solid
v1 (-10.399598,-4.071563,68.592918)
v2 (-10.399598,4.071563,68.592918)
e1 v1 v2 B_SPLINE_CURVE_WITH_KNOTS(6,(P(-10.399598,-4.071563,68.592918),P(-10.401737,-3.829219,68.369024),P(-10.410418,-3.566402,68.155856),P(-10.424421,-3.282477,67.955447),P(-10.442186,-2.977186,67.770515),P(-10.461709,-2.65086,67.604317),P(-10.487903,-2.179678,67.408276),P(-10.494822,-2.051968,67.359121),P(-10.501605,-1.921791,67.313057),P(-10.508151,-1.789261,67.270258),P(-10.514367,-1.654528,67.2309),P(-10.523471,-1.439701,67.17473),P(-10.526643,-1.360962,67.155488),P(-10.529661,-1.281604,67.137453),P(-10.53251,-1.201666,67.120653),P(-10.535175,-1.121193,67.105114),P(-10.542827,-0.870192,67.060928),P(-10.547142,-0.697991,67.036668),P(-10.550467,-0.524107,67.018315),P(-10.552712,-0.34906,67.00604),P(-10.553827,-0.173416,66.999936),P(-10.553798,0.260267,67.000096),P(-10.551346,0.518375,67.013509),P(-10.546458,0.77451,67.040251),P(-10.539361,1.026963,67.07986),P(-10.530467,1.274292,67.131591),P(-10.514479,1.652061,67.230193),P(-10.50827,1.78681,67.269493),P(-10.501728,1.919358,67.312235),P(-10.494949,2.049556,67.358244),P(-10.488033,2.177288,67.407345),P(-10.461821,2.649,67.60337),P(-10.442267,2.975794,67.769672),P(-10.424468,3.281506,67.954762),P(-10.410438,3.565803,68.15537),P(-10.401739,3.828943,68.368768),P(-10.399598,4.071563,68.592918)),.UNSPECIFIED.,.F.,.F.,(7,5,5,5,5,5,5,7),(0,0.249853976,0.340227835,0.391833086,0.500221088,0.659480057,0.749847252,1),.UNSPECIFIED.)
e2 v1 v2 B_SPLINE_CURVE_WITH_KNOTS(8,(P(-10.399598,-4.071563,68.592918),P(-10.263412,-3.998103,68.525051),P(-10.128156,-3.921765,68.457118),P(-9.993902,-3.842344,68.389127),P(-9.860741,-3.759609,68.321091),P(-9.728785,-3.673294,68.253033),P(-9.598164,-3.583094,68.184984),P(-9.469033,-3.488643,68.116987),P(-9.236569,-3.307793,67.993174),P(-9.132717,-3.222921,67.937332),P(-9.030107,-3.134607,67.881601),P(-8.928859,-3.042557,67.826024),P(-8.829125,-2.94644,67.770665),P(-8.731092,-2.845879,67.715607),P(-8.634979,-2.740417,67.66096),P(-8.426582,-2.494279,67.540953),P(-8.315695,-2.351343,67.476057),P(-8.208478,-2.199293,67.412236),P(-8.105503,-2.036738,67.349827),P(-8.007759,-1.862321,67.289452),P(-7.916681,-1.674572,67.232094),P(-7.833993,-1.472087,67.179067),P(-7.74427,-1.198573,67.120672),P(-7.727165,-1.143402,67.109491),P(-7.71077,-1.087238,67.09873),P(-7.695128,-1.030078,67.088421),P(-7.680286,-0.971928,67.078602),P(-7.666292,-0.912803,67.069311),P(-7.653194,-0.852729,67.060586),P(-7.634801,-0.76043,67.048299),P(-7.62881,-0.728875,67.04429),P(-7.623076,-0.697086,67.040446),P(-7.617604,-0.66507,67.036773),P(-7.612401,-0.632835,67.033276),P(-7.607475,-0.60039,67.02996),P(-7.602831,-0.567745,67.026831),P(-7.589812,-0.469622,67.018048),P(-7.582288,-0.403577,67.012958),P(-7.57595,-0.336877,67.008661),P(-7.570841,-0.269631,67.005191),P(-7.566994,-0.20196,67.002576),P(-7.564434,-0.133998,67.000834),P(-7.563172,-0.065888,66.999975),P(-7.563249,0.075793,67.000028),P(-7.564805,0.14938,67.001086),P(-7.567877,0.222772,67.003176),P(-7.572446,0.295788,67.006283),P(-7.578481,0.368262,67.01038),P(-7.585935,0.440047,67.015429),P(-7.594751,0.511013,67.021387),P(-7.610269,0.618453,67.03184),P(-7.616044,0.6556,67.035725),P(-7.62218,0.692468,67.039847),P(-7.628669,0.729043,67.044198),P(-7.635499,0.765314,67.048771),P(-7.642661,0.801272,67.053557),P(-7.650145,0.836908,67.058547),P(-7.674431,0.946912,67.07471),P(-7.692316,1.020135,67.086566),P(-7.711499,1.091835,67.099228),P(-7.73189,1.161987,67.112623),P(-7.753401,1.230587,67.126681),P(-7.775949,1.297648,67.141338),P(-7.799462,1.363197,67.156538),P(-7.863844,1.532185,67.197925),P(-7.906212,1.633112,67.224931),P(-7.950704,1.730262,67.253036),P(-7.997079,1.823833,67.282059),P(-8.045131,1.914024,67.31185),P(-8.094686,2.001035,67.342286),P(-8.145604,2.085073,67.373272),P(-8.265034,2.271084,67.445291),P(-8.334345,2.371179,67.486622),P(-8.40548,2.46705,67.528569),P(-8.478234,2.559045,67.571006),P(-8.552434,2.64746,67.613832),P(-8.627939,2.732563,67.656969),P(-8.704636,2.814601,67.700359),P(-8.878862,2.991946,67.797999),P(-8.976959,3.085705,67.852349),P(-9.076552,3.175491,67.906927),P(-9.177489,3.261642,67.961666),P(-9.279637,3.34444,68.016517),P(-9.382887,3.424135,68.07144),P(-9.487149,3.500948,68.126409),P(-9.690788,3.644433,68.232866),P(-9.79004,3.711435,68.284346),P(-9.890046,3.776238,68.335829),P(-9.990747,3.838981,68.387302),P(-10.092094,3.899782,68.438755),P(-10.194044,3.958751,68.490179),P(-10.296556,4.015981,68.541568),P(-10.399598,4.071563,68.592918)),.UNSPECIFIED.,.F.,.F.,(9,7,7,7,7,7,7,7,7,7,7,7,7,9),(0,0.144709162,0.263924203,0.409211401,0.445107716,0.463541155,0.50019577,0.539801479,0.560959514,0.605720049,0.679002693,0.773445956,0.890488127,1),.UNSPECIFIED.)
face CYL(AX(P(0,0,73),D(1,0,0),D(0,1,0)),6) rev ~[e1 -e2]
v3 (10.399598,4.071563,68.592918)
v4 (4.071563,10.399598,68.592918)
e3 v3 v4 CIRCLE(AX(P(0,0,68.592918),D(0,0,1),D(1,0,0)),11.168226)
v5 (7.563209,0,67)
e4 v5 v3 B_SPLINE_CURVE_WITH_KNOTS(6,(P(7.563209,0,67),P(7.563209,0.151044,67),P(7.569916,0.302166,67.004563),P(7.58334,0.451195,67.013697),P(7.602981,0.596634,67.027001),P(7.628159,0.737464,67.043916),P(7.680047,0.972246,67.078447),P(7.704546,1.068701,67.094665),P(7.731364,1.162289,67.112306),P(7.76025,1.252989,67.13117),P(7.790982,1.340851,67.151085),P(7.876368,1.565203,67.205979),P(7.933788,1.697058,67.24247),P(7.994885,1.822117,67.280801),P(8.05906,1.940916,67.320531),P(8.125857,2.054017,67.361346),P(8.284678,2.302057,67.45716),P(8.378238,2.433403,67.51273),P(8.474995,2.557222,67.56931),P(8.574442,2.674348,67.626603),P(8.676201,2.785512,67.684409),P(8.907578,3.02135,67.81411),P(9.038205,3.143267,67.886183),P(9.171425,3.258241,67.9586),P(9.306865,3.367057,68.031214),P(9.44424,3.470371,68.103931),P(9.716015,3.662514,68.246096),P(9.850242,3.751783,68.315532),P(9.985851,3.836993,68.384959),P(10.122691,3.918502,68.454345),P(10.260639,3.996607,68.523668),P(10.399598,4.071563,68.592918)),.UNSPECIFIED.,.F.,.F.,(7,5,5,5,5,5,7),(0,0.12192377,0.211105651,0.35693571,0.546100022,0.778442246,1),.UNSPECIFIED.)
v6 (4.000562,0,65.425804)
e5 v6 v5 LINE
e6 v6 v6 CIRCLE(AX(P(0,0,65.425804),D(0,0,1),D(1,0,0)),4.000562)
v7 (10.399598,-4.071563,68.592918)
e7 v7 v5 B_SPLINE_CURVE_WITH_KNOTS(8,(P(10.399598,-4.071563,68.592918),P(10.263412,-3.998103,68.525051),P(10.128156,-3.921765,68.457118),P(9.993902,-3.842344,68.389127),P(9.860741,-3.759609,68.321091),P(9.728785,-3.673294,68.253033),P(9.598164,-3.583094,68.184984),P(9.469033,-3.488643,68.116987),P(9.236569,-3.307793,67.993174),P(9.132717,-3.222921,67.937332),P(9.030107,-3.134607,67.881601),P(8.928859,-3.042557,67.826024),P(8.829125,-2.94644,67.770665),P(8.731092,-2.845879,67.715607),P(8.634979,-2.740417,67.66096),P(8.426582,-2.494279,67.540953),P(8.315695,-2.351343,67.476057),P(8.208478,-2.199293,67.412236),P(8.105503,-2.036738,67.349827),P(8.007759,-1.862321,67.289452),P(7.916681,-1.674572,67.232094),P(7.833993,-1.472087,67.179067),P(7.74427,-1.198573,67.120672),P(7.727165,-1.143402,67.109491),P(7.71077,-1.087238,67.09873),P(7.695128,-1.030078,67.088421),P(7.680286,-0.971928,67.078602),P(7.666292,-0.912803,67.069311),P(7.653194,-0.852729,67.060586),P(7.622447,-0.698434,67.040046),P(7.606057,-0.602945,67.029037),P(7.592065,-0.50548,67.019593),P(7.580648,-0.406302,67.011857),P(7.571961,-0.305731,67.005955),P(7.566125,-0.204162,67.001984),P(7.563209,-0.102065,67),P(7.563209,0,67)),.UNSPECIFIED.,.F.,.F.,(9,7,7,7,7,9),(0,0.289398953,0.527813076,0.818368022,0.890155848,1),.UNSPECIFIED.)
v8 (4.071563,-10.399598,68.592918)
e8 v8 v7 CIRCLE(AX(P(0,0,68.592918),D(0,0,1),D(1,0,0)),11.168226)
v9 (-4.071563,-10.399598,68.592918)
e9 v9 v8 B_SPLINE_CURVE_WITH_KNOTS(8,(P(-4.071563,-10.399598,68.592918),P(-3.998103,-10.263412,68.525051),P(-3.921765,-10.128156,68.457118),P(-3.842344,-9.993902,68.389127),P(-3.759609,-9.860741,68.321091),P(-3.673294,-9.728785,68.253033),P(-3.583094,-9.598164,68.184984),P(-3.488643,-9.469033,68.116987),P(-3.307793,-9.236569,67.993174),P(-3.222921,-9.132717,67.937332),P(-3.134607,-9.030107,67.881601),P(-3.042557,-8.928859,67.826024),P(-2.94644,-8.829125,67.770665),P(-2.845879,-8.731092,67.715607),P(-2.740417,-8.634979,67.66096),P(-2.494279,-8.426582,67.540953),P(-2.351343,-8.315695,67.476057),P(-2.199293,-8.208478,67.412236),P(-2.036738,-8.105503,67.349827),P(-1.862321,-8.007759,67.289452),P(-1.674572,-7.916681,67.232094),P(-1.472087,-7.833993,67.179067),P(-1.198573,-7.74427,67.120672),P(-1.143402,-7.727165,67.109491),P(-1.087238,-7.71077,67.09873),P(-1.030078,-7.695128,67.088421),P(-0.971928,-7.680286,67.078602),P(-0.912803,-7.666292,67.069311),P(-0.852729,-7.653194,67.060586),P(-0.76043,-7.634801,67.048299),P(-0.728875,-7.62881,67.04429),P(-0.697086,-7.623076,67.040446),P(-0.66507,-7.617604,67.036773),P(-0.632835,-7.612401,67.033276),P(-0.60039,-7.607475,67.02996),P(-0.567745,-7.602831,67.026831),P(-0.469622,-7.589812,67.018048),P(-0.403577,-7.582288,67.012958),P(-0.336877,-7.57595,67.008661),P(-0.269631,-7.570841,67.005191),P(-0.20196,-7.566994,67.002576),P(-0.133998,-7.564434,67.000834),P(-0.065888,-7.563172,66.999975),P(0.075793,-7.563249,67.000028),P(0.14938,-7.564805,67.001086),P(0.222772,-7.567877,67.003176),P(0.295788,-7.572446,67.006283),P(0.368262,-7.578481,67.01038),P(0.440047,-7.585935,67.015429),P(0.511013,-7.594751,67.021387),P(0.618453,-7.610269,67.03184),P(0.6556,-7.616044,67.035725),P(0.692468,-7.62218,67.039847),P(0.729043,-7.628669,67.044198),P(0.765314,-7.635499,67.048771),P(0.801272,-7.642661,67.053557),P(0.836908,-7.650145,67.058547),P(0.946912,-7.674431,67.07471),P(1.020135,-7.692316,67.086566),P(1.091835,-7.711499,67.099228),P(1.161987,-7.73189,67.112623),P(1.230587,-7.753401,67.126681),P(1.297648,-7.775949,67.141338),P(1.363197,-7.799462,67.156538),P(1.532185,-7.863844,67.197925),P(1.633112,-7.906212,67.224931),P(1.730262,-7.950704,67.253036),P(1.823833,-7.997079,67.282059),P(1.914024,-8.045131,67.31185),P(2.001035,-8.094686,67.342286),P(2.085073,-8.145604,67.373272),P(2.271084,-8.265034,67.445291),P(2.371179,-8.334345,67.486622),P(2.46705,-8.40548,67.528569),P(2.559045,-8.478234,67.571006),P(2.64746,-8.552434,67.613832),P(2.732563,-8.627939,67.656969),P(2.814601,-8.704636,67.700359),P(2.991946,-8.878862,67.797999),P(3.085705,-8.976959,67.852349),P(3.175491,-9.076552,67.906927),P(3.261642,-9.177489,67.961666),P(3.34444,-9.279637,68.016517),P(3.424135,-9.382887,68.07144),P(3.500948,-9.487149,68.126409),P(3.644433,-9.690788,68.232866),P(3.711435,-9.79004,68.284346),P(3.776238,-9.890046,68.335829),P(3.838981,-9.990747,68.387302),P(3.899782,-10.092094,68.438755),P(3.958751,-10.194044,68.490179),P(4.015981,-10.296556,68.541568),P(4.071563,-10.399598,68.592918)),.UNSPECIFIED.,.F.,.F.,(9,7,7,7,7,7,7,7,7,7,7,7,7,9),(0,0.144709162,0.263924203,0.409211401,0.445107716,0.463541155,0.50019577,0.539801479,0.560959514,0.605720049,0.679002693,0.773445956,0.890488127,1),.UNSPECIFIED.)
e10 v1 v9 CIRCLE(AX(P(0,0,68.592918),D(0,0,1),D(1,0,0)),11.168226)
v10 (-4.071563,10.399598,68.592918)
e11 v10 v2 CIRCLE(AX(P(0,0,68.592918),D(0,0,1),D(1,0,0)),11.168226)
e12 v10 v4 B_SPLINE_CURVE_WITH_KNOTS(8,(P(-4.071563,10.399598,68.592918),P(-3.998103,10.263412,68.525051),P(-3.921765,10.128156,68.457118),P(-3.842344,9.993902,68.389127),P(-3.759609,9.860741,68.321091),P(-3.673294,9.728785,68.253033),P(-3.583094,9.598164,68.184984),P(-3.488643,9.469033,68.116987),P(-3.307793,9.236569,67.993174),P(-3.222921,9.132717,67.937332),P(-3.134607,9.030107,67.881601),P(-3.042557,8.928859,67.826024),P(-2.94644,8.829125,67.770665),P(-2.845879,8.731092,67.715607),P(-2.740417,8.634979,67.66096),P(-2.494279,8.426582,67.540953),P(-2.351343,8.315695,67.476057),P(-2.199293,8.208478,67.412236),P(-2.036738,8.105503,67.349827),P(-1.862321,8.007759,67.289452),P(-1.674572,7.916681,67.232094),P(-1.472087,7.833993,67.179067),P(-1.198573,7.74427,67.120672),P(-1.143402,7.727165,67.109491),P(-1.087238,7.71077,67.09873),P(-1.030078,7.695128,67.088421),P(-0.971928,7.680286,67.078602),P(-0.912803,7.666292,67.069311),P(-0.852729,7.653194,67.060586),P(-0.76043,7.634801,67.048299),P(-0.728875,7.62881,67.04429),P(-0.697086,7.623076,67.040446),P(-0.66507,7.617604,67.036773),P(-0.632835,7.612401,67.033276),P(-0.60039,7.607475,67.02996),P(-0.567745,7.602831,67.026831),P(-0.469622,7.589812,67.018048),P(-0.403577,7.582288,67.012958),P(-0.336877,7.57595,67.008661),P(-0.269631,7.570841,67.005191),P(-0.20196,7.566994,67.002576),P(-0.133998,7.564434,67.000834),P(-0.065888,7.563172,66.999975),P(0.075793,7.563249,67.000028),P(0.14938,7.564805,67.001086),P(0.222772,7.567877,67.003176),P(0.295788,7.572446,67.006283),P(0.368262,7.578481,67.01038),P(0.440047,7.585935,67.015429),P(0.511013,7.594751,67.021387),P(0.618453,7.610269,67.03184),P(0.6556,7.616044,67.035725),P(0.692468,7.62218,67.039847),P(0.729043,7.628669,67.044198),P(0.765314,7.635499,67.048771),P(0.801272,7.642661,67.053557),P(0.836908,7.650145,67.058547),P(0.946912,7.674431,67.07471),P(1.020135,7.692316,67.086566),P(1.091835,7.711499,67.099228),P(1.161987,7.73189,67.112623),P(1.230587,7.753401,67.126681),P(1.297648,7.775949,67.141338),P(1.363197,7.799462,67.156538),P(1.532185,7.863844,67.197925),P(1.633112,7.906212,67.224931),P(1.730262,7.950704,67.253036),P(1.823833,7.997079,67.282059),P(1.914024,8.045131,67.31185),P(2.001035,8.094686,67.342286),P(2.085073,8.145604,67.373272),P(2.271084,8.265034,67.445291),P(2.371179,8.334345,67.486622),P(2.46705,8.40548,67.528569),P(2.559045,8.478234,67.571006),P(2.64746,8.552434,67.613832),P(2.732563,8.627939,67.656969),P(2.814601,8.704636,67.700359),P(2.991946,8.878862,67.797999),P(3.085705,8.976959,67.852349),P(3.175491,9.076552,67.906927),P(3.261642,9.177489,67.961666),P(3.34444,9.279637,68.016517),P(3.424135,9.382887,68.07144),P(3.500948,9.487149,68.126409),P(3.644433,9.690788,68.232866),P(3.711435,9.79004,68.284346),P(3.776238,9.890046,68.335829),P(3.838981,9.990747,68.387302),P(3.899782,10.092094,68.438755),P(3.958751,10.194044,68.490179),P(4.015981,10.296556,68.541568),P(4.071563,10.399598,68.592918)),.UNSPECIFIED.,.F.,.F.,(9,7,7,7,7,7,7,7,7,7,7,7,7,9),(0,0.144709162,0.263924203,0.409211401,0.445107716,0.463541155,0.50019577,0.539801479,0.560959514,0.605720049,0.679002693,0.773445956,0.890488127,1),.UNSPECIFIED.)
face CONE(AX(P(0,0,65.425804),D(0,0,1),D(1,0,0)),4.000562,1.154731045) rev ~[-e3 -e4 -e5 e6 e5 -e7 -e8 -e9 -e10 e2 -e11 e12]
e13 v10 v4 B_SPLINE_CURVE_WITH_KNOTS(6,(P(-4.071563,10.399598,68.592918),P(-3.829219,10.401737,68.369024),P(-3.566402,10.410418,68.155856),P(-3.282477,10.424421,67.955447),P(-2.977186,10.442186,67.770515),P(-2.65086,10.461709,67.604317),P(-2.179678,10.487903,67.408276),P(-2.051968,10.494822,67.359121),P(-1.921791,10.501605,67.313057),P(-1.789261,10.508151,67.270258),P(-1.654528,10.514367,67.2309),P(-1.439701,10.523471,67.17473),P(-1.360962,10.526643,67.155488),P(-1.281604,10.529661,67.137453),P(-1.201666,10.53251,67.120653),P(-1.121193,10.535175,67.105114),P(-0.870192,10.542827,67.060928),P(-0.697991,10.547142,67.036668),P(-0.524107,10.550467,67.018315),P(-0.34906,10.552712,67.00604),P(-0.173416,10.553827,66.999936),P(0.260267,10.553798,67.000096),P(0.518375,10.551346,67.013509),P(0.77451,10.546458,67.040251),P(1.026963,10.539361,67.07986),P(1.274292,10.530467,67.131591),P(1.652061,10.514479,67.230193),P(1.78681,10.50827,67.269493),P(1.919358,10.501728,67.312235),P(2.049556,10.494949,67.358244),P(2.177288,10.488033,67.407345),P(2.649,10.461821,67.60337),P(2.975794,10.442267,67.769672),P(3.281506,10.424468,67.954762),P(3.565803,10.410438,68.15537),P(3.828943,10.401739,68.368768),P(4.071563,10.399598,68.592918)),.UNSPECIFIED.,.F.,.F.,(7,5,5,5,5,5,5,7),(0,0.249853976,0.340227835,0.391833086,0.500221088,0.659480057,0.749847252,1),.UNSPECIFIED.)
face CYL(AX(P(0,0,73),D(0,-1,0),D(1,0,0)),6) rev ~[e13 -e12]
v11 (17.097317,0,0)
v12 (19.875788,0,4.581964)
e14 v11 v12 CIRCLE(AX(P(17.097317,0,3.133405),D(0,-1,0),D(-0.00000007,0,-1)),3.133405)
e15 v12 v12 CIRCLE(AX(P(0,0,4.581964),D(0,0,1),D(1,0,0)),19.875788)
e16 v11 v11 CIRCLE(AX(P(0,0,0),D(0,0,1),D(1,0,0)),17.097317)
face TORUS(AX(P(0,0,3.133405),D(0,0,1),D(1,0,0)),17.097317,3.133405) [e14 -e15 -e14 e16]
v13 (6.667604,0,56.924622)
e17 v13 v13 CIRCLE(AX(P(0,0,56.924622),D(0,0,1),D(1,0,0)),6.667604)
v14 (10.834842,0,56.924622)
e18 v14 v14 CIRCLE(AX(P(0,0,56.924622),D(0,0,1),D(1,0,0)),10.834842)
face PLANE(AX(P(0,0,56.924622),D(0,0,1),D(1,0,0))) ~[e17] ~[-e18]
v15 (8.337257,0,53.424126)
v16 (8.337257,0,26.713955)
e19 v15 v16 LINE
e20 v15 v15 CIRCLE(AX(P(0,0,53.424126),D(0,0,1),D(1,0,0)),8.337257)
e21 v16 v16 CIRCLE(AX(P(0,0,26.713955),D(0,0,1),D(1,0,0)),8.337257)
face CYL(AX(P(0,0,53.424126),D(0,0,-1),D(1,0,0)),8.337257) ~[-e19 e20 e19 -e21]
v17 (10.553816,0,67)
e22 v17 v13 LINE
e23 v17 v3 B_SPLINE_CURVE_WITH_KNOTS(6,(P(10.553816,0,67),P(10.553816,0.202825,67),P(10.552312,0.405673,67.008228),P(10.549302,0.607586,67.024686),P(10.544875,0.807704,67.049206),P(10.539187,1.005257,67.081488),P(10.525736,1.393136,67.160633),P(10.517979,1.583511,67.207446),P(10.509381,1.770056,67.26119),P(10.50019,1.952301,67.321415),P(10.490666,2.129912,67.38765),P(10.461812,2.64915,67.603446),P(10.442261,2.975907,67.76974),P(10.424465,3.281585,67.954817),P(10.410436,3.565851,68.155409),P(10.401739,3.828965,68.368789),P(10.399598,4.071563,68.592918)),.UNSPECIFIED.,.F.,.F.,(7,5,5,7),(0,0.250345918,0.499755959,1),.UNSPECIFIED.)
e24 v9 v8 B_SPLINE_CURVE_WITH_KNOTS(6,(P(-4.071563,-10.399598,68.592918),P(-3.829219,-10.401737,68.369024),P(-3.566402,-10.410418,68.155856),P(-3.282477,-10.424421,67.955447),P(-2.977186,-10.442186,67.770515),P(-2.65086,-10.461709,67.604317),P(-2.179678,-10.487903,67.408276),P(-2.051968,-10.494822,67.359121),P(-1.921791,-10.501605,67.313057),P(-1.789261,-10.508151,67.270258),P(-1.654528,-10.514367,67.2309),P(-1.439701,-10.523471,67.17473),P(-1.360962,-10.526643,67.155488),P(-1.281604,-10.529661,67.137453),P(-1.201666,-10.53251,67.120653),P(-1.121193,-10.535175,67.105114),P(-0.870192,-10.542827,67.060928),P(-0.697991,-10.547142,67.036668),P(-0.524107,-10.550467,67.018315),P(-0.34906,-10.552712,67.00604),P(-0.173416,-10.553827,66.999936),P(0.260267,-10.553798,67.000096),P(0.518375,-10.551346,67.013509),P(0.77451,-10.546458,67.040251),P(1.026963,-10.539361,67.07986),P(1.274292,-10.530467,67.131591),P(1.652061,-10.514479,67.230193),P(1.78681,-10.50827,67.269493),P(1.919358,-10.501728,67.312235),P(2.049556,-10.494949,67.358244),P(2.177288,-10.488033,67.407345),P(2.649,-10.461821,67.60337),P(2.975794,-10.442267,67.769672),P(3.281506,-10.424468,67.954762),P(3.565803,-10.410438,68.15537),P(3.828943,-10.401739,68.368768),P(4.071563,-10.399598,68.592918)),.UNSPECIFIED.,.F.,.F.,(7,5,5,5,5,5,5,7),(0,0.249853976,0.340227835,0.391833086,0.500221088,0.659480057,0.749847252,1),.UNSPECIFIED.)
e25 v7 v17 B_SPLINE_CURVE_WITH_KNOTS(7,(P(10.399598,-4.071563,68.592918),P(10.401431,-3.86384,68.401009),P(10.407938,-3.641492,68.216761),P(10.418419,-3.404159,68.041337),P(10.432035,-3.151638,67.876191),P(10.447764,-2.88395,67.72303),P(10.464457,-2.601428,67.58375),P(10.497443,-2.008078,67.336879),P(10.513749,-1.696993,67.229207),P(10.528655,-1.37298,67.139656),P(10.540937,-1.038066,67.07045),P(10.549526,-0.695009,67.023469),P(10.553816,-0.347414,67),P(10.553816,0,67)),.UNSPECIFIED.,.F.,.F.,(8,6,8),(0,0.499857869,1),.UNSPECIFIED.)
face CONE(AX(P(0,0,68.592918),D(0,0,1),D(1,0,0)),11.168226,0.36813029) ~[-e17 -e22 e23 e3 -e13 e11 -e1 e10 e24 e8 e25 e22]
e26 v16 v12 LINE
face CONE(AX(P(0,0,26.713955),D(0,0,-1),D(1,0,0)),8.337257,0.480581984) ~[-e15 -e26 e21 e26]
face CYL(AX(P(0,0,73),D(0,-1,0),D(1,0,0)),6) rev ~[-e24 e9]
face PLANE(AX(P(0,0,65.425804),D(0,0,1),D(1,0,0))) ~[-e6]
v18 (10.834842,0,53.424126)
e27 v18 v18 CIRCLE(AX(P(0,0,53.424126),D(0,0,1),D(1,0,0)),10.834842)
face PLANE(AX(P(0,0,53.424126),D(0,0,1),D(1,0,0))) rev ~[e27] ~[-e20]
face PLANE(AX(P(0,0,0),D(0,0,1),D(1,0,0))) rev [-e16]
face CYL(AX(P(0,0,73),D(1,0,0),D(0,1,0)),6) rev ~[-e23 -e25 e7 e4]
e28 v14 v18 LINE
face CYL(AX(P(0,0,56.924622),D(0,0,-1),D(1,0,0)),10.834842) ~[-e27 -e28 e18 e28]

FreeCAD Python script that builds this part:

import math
import FreeCAD as App
import Part
import Sketcher

doc = App.newDocument("Part")
body = doc.addObject("PartDesign::Body", "Body")

# Sketch on YZ plane
sketch1 = body.newObject("Sketcher::SketchObject", "Sketch")
sketch1.AttachmentSupport = (doc.getObject("YZ_Plane"), [""])
sketch1.MapMode = "FlatFace"
sketch1.addGeometry(Part.Circle(App.Vector(0, 73, 0), App.Vector(0, 0, 1), 6), False)
sketch1.addConstraint([
    Sketcher.Constraint("PointOnObject", 0, 3, -2),
    Sketcher.Constraint("Diameter", 0, 12.0),
    Sketcher.Constraint("DistanceY", -1, 1, 0, 3, 73.0),
])
pad1 = body.newObject("PartDesign::Pad", "Pad")
pad1.Profile = sketch1
pad1.Length = 45
pad1.Midplane = True
body2 = doc.addObject("PartDesign::Body", "Body001")

# Sketch on XZ plane
sketch2 = body2.newObject("Sketcher::SketchObject", "Sketch001")
sketch2.AttachmentSupport = (doc.getObject("XZ_Plane001"), [""])
sketch2.MapMode = "FlatFace"
sketch2.addGeometry(Part.Circle(App.Vector(0, 73, 0), App.Vector(0, 0, 1), 6), False)
sketch2.addConstraint([
    Sketcher.Constraint("PointOnObject", 0, 3, -2),
    Sketcher.Constraint("Diameter", 0, 12.0),
    Sketcher.Constraint("DistanceY", -1, 1, 0, 3, 73.0),
])
pad2 = body2.newObject("PartDesign::Pad", "Pad001")
pad2.Profile = sketch2
pad2.Length = 45
pad2.Midplane = True
body3 = doc.addObject("PartDesign::Body", "Body002")

# Sketch on XZ plane
sketch3 = body3.newObject("Sketcher::SketchObject", "Sketch002")
sketch3.AttachmentSupport = (doc.getObject("XZ_Plane002"), [""])
sketch3.MapMode = "FlatFace"
sketch3.addGeometry([
    Part.LineSegment(App.Vector(4, 65.4, 0), App.Vector(0, 65.4, 0)),  # 0
    Part.LineSegment(App.Vector(0, 65.4, 0), App.Vector(0, 0, 0)),  # 1
    Part.LineSegment(App.Vector(0, 0, 0), App.Vector(17.1, 0, 0)),  # 2
    Part.ArcOfCircle(Part.Circle(App.Vector(17.1, 3.1, 0), App.Vector(0, 0, 1), 3.1), math.radians(-90), math.radians(28)),  # 3
    Part.LineSegment(App.Vector(19.9, 4.6, 0), App.Vector(8.3, 26.7, 0)),  # 4
    Part.LineSegment(App.Vector(8.3, 26.7, 0), App.Vector(8.3, 53.4, 0)),  # 5
    Part.LineSegment(App.Vector(8.3, 53.4, 0), App.Vector(10.8, 53.4, 0)),  # 6
    Part.LineSegment(App.Vector(10.8, 53.4, 0), App.Vector(10.8, 56.9, 0)),  # 7
    Part.LineSegment(App.Vector(10.8, 56.9, 0), App.Vector(6.7, 56.9, 0)),  # 8
    Part.LineSegment(App.Vector(6.7, 56.9, 0), App.Vector(11.2, 68.6, 0)),  # 9
    Part.LineSegment(App.Vector(11.2, 68.6, 0), App.Vector(4, 65.4, 0)),  # 10
], False)
sketch3.addConstraint([
    Sketcher.Constraint("Coincident", 0, 2, 1, 1),
    Sketcher.Constraint("Coincident", 1, 2, 2, 1),
    Sketcher.Constraint("Tangent", 2, 2, 3, 1),
    Sketcher.Constraint("Tangent", 3, 2, 4, 1),
    Sketcher.Constraint("Coincident", 4, 2, 5, 1),
    Sketcher.Constraint("Coincident", 5, 2, 6, 1),
    Sketcher.Constraint("Coincident", 6, 2, 7, 1),
    Sketcher.Constraint("Coincident", 7, 2, 8, 1),
    Sketcher.Constraint("Coincident", 8, 2, 9, 1),
    Sketcher.Constraint("Coincident", 9, 2, 10, 1),
    Sketcher.Constraint("Coincident", 10, 2, 0, 1),
    Sketcher.Constraint("Horizontal", 0),
    Sketcher.Constraint("Vertical", 1),
    Sketcher.Constraint("Horizontal", 2),
    Sketcher.Constraint("Vertical", 5),
    Sketcher.Constraint("Horizontal", 6),
    Sketcher.Constraint("Vertical", 7),
    Sketcher.Constraint("Horizontal", 8),
    Sketcher.Constraint("Coincident", 1, 2, -1, 1),
    Sketcher.Constraint("Radius", 3, 3.133405),
    Sketcher.Constraint("Distance", 10, 7.836199),
    Sketcher.Constraint("DistanceX", 8, 2, 8, 1, 4.167238),
    Sketcher.Constraint("DistanceY", 5, 1, 5, 2, 26.710171),
    Sketcher.Constraint("DistanceY", 3, 3, 0, 2, 62.292399),
    Sketcher.Constraint("Distance", 4, 24.959221),
    Sketcher.Constraint("DistanceX", 0, 2, 0, 1, 4.000562),
    Sketcher.Constraint("DistanceX", 2, 1, 2, 2, 17.097317),
    Sketcher.Constraint("DistanceX", 6, 1, 6, 2, 2.497585),
    Sketcher.Constraint("DistanceY", 7, 1, 7, 2, 3.500496),
    Sketcher.Constraint("DistanceX", 3, 3, 3, 2, 2.778471),
    Sketcher.Constraint("DistanceY", 6, 2, 9, 2, 15.168792),
])
revolution = body3.newObject("PartDesign::Revolution", "Revolution")
revolution.Profile = sketch3
revolution.ReferenceAxis = (sketch3, ["V_Axis"])
revolution.Angle = 360
doc.recompute()

boolean = body3.newObject("PartDesign::Boolean", "Boolean")
boolean.Type = "Cut"
boolean.addObjects([body2])
doc.recompute()

boolean2 = body3.newObject("PartDesign::Boolean", "Boolean001")
boolean2.Type = "Cut"
boolean2.addObjects([body])

doc.recompute()
